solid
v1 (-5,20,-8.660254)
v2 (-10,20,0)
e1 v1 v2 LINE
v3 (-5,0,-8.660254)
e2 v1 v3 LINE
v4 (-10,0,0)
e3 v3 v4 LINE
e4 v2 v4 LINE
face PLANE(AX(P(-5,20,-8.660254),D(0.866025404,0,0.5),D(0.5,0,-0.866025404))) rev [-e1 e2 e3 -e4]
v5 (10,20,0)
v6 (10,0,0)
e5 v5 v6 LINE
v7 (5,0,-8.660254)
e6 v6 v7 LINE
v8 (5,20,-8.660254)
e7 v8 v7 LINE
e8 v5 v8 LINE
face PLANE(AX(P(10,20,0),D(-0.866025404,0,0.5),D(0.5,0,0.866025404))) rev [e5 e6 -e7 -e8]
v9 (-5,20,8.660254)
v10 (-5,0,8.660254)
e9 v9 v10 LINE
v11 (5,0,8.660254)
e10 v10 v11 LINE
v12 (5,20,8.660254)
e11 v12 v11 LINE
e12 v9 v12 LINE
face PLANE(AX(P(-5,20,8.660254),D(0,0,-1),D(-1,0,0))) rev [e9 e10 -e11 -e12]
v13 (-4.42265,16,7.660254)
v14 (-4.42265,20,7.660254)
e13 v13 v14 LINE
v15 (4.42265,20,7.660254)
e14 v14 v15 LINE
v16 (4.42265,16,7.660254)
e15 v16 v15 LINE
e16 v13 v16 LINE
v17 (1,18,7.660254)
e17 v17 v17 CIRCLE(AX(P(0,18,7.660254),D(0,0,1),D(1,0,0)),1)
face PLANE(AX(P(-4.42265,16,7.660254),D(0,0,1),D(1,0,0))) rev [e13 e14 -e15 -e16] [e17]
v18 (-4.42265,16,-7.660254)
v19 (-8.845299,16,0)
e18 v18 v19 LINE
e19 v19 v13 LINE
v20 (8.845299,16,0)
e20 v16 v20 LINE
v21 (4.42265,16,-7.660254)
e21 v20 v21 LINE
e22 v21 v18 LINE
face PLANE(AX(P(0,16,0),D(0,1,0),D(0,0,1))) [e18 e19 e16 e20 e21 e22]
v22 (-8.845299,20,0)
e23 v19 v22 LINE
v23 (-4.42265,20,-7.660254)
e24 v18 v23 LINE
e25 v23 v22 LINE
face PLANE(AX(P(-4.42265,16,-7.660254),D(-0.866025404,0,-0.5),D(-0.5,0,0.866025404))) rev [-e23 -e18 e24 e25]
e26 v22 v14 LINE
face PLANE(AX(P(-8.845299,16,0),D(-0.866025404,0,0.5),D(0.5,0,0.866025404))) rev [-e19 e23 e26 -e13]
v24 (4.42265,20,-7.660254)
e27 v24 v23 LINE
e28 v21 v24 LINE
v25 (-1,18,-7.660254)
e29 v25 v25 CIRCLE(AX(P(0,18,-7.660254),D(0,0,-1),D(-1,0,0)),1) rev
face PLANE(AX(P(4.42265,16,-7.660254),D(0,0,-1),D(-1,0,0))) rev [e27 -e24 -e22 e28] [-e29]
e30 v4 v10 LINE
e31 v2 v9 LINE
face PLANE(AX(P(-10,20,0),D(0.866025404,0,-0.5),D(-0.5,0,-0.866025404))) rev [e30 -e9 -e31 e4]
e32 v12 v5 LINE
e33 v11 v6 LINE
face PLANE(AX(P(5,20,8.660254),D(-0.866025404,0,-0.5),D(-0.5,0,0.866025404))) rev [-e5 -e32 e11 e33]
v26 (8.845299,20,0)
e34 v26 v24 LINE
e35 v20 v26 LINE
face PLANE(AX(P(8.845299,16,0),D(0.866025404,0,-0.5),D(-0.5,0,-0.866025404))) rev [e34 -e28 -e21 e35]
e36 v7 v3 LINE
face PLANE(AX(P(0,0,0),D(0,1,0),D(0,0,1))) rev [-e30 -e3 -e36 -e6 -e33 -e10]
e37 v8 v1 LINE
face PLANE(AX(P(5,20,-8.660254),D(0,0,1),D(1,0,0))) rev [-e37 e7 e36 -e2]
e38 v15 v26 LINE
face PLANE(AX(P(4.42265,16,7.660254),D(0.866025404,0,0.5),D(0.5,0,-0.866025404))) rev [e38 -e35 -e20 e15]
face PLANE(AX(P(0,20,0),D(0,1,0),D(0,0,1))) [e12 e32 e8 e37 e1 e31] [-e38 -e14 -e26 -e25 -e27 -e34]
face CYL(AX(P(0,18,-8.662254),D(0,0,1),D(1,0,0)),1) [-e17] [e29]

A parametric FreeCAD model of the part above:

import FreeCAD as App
import Part
import Sketcher
from FreeCAD import Vector
Q = App.Units.Quantity

doc = App.newDocument("Part")
body = doc.addObject("PartDesign::Body", "Body")

# Sketch on XZ plane
sketch1 = body.newObject("Sketcher::SketchObject", "Sketch")
sketch1.AttachmentSupport = (doc.getObject("XZ_Plane"), [""])
sketch1.MapMode = "FlatFace"
sketch1.addGeometry([
    Part.LineSegment(Vector(10, 0, 0), Vector(5, -9, 0)),  # 0
    Part.LineSegment(Vector(5, -9, 0), Vector(-5, -9, 0)),  # 1
    Part.LineSegment(Vector(-5, -9, 0), Vector(-10, 0, 0)),  # 2
    Part.LineSegment(Vector(-10, 0, 0), Vector(-5, 9, 0)),  # 3
    Part.LineSegment(Vector(-5, 9, 0), Vector(5, 9, 0)),  # 4
    Part.LineSegment(Vector(5, 9, 0), Vector(10, 0, 0)),  # 5
], False)
sketch1.addConstraint([
    Sketcher.Constraint("Coincident", 0, 2, 1, 1),
    Sketcher.Constraint("Coincident", 1, 2, 2, 1),
    Sketcher.Constraint("Coincident", 2, 2, 3, 1),
    Sketcher.Constraint("Coincident", 3, 2, 4, 1),
    Sketcher.Constraint("Coincident", 4, 2, 5, 1),
    Sketcher.Constraint("Coincident", 5, 2, 0, 1),
    Sketcher.Constraint("Horizontal", 1),
    Sketcher.Constraint("Horizontal", 4),
    Sketcher.Constraint("Symmetric", 0, 2, 3, 2, -1, 1),
    Sketcher.Constraint("Symmetric", 2, 2, 5, 2, -1, 1),
    Sketcher.Constraint("PointOnObject", 2, 2, -1),
    Sketcher.Constraint("Parallel", 2, 5),
    Sketcher.Constraint("Vertical", 1, 2, 3, 2),
    Sketcher.Constraint("DistanceX", 1, 2, 1, 1, Q("10 mm")),
    Sketcher.Constraint("Angle", 0, Q("-120 deg")),
    Sketcher.Constraint("Distance", 0, Q("10 mm")),
])
pad1 = body.newObject("PartDesign::Pad", "Pad")
pad1.Profile = sketch1
pad1.Length = 20
pad1.Reversed = True

# Sketch on XZ plane
sketch2 = body.newObject("Sketcher::SketchObject", "Sketch001")
sketch2.AttachmentSupport = (doc.getObject("XZ_Plane"), [""])
sketch2.MapMode = "FlatFace"
sketch2.AttachmentOffset = App.Placement(Vector(0, 0, -20), App.Rotation())
sketch2.addGeometry([
    Part.LineSegment(Vector(4, 8, 0), Vector(9, 0, 0)),  # 0
    Part.LineSegment(Vector(9, 0, 0), Vector(4, -8, 0)),  # 1
    Part.LineSegment(Vector(4, -8, 0), Vector(-4, -8, 0)),  # 2
    Part.LineSegment(Vector(-4, -8, 0), Vector(-9, 0, 0)),  # 3
    Part.LineSegment(Vector(-9, 0, 0), Vector(-4, 8, 0)),  # 4
    Part.LineSegment(Vector(-4, 8, 0), Vector(4, 8, 0)),  # 5
], False)
sketch2.addConstraint([
    Sketcher.Constraint("Coincident", 0, 2, 1, 1),
    Sketcher.Constraint("Coincident", 1, 2, 2, 1),
    Sketcher.Constraint("Coincident", 2, 2, 3, 1),
    Sketcher.Constraint("Coincident", 3, 2, 4, 1),
    Sketcher.Constraint("Coincident", 4, 2, 5, 1),
    Sketcher.Constraint("Coincident", 5, 2, 0, 1),
    Sketcher.Constraint("Horizontal", 2),
    Sketcher.Constraint("Horizontal", 5),
    Sketcher.Constraint("Symmetric", 0, 2, 3, 2, -1, 1),
    Sketcher.Constraint("Symmetric", 1, 2, 4, 2, -1, 1),
    Sketcher.Constraint("PointOnObject", 0, 2, -1),
    Sketcher.Constraint("Parallel", 0, 3),
    Sketcher.Constraint("Vertical", 2, 2, 4, 2),
    Sketcher.Constraint("Angle", 0, Q("-60 deg")),
    Sketcher.Constraint("DistanceX", 2, 2, 2, 1, Q("8.845299 mm")),
    Sketcher.Constraint("Distance", 0, Q("8.845299 mm")),
])
pocket1 = body.newObject("PartDesign::Pocket", "Pocket")
pocket1.Profile = sketch2
pocket1.Length = 4
pocket1.Reversed = True

# Sketch on XY plane
sketch3 = body.newObject("Sketcher::SketchObject", "Sketch002")
sketch3.AttachmentSupport = (doc.getObject("XY_Plane"), [""])
sketch3.MapMode = "FlatFace"
sketch3.addGeometry(Part.Circle(Vector(0, 18, 0), Vector(0, 0, 1), 1), False)
sketch3.addConstraint([
    Sketcher.Constraint("PointOnObject", 0, 3, -2),
    Sketcher.Constraint("Diameter", 0, Q("2 mm")),
    Sketcher.Constraint("DistanceY", -1, 1, 0, 3, Q("18 mm")),
])
pad2 = body.newObject("PartDesign::Pad", "Pad001")
pad2.Profile = sketch3
pad2.Type = "UpToFirst"

# Sketch on XY plane
sketch4 = body.newObject("Sketcher::SketchObject", "Sketch003")
sketch4.AttachmentSupport = (doc.getObject("XY_Plane"), [""])
sketch4.MapMode = "FlatFace"
sketch4.addGeometry(Part.Circle(Vector(0, 18, 0), Vector(0, 0, 1), 1), False)
sketch4.addConstraint([
    Sketcher.Constraint("PointOnObject", 0, 3, -2),
    Sketcher.Constraint("Diameter", 0, Q("2 mm")),
    Sketcher.Constraint("DistanceY", -1, 1, 0, 3, Q("18 mm")),
])
pad3 = body.newObject("PartDesign::Pad", "Pad002")
pad3.Profile = sketch4
pad3.Type = "UpToFirst"
pad3.Reversed = True

doc.recompute()
